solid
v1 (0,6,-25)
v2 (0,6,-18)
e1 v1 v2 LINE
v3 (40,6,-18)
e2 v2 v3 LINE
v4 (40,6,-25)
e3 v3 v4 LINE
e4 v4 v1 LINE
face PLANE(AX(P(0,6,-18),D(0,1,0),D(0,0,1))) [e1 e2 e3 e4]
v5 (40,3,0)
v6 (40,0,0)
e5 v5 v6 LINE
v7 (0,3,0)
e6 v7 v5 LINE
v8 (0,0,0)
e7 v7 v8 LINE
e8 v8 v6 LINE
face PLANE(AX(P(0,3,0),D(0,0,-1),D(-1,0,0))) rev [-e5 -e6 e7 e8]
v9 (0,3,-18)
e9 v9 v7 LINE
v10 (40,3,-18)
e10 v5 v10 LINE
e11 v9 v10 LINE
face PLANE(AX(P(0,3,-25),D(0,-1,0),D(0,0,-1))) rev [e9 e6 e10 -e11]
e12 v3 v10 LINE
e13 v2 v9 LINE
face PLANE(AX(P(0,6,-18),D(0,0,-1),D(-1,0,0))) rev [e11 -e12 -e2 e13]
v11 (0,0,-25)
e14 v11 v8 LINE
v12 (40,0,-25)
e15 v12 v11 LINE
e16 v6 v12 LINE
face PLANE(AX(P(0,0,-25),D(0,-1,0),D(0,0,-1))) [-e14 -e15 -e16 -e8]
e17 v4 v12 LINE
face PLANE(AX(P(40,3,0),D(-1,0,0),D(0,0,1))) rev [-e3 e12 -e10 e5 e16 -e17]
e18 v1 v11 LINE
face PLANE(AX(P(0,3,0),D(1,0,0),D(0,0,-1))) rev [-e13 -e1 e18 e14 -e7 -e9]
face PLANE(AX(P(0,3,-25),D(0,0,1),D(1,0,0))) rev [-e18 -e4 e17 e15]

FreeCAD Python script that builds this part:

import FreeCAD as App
import Part
import Sketcher

V = App.Vector


def add_polygon(sketch, points):
    """Adds a closed chain of lines whose ends are joined by coincident constraints."""
    first, n = sketch.GeometryCount, len(points)
    for a, b in zip(points, points[1:] + points[:1]):
        sketch.addGeometry(Part.LineSegment(App.Vector(*a, 0), App.Vector(*b, 0)), False)
    for i in range(n):
        sketch.addConstraint(Sketcher.Constraint("Coincident", first + i, 2, first + (i + 1) % n, 1))

doc = App.newDocument("Part")
body = doc.addObject("PartDesign::Body", "Body")

# Sketch on XZ plane
sketch1 = body.newObject("Sketcher::SketchObject", "Sketch")
sketch1.AttachmentSupport = (doc.getObject("XZ_Plane"), [""])
sketch1.MapMode = "FlatFace"
add_polygon(sketch1, [(0, -25), (0, 0), (40, 0), (40, -25)])  # lines 0-3
sketch1.addConstraint([
    Sketcher.Constraint("Vertical", 0),
    Sketcher.Constraint("Horizontal", 1),
    Sketcher.Constraint("Vertical", 2),
    Sketcher.Constraint("Horizontal", 3),
    Sketcher.Constraint("Coincident", 0, 2, -1, 1),
    Sketcher.Constraint("DistanceX", 1, 1, 1, 2, 40.0),
    Sketcher.Constraint("DistanceY", 0, 1, 0, 2, 25.0),
])
pad1 = body.newObject("PartDesign::Pad", "Pad")
pad1.Profile = sketch1
pad1.Length = 3
pad1.Reversed = True

# Sketch on XZ plane
sketch2 = body.newObject("Sketcher::SketchObject", "Sketch001")
sketch2.AttachmentSupport = (doc.getObject("XZ_Plane"), [""])
sketch2.MapMode = "FlatFace"
sketch2.AttachmentOffset = App.Placement(V(0, 0, -3), App.Rotation())
add_polygon(sketch2, [(0, -25), (0, -18), (40, -18), (40, -25)])  # lines 0-3
sketch2.addConstraint([
    Sketcher.Constraint("Vertical", 0),
    Sketcher.Constraint("Horizontal", 1),
    Sketcher.Constraint("Vertical", 2),
    Sketcher.Constraint("Horizontal", 3),
    Sketcher.Constraint("PointOnObject", 0, 2, -2),
    Sketcher.Constraint("DistanceX", 1, 1, 1, 2, 40.0),
    Sketcher.Constraint("DistanceY", 0, 1, 0, 2, 7.0),
    Sketcher.Constraint("DistanceY", 0, 2, -1, 1, 18.0),
])
pad2 = body.newObject("PartDesign::Pad", "Pad001")
pad2.Profile = sketch2
pad2.Length = 3
pad2.Reversed = True

doc.recompute()
